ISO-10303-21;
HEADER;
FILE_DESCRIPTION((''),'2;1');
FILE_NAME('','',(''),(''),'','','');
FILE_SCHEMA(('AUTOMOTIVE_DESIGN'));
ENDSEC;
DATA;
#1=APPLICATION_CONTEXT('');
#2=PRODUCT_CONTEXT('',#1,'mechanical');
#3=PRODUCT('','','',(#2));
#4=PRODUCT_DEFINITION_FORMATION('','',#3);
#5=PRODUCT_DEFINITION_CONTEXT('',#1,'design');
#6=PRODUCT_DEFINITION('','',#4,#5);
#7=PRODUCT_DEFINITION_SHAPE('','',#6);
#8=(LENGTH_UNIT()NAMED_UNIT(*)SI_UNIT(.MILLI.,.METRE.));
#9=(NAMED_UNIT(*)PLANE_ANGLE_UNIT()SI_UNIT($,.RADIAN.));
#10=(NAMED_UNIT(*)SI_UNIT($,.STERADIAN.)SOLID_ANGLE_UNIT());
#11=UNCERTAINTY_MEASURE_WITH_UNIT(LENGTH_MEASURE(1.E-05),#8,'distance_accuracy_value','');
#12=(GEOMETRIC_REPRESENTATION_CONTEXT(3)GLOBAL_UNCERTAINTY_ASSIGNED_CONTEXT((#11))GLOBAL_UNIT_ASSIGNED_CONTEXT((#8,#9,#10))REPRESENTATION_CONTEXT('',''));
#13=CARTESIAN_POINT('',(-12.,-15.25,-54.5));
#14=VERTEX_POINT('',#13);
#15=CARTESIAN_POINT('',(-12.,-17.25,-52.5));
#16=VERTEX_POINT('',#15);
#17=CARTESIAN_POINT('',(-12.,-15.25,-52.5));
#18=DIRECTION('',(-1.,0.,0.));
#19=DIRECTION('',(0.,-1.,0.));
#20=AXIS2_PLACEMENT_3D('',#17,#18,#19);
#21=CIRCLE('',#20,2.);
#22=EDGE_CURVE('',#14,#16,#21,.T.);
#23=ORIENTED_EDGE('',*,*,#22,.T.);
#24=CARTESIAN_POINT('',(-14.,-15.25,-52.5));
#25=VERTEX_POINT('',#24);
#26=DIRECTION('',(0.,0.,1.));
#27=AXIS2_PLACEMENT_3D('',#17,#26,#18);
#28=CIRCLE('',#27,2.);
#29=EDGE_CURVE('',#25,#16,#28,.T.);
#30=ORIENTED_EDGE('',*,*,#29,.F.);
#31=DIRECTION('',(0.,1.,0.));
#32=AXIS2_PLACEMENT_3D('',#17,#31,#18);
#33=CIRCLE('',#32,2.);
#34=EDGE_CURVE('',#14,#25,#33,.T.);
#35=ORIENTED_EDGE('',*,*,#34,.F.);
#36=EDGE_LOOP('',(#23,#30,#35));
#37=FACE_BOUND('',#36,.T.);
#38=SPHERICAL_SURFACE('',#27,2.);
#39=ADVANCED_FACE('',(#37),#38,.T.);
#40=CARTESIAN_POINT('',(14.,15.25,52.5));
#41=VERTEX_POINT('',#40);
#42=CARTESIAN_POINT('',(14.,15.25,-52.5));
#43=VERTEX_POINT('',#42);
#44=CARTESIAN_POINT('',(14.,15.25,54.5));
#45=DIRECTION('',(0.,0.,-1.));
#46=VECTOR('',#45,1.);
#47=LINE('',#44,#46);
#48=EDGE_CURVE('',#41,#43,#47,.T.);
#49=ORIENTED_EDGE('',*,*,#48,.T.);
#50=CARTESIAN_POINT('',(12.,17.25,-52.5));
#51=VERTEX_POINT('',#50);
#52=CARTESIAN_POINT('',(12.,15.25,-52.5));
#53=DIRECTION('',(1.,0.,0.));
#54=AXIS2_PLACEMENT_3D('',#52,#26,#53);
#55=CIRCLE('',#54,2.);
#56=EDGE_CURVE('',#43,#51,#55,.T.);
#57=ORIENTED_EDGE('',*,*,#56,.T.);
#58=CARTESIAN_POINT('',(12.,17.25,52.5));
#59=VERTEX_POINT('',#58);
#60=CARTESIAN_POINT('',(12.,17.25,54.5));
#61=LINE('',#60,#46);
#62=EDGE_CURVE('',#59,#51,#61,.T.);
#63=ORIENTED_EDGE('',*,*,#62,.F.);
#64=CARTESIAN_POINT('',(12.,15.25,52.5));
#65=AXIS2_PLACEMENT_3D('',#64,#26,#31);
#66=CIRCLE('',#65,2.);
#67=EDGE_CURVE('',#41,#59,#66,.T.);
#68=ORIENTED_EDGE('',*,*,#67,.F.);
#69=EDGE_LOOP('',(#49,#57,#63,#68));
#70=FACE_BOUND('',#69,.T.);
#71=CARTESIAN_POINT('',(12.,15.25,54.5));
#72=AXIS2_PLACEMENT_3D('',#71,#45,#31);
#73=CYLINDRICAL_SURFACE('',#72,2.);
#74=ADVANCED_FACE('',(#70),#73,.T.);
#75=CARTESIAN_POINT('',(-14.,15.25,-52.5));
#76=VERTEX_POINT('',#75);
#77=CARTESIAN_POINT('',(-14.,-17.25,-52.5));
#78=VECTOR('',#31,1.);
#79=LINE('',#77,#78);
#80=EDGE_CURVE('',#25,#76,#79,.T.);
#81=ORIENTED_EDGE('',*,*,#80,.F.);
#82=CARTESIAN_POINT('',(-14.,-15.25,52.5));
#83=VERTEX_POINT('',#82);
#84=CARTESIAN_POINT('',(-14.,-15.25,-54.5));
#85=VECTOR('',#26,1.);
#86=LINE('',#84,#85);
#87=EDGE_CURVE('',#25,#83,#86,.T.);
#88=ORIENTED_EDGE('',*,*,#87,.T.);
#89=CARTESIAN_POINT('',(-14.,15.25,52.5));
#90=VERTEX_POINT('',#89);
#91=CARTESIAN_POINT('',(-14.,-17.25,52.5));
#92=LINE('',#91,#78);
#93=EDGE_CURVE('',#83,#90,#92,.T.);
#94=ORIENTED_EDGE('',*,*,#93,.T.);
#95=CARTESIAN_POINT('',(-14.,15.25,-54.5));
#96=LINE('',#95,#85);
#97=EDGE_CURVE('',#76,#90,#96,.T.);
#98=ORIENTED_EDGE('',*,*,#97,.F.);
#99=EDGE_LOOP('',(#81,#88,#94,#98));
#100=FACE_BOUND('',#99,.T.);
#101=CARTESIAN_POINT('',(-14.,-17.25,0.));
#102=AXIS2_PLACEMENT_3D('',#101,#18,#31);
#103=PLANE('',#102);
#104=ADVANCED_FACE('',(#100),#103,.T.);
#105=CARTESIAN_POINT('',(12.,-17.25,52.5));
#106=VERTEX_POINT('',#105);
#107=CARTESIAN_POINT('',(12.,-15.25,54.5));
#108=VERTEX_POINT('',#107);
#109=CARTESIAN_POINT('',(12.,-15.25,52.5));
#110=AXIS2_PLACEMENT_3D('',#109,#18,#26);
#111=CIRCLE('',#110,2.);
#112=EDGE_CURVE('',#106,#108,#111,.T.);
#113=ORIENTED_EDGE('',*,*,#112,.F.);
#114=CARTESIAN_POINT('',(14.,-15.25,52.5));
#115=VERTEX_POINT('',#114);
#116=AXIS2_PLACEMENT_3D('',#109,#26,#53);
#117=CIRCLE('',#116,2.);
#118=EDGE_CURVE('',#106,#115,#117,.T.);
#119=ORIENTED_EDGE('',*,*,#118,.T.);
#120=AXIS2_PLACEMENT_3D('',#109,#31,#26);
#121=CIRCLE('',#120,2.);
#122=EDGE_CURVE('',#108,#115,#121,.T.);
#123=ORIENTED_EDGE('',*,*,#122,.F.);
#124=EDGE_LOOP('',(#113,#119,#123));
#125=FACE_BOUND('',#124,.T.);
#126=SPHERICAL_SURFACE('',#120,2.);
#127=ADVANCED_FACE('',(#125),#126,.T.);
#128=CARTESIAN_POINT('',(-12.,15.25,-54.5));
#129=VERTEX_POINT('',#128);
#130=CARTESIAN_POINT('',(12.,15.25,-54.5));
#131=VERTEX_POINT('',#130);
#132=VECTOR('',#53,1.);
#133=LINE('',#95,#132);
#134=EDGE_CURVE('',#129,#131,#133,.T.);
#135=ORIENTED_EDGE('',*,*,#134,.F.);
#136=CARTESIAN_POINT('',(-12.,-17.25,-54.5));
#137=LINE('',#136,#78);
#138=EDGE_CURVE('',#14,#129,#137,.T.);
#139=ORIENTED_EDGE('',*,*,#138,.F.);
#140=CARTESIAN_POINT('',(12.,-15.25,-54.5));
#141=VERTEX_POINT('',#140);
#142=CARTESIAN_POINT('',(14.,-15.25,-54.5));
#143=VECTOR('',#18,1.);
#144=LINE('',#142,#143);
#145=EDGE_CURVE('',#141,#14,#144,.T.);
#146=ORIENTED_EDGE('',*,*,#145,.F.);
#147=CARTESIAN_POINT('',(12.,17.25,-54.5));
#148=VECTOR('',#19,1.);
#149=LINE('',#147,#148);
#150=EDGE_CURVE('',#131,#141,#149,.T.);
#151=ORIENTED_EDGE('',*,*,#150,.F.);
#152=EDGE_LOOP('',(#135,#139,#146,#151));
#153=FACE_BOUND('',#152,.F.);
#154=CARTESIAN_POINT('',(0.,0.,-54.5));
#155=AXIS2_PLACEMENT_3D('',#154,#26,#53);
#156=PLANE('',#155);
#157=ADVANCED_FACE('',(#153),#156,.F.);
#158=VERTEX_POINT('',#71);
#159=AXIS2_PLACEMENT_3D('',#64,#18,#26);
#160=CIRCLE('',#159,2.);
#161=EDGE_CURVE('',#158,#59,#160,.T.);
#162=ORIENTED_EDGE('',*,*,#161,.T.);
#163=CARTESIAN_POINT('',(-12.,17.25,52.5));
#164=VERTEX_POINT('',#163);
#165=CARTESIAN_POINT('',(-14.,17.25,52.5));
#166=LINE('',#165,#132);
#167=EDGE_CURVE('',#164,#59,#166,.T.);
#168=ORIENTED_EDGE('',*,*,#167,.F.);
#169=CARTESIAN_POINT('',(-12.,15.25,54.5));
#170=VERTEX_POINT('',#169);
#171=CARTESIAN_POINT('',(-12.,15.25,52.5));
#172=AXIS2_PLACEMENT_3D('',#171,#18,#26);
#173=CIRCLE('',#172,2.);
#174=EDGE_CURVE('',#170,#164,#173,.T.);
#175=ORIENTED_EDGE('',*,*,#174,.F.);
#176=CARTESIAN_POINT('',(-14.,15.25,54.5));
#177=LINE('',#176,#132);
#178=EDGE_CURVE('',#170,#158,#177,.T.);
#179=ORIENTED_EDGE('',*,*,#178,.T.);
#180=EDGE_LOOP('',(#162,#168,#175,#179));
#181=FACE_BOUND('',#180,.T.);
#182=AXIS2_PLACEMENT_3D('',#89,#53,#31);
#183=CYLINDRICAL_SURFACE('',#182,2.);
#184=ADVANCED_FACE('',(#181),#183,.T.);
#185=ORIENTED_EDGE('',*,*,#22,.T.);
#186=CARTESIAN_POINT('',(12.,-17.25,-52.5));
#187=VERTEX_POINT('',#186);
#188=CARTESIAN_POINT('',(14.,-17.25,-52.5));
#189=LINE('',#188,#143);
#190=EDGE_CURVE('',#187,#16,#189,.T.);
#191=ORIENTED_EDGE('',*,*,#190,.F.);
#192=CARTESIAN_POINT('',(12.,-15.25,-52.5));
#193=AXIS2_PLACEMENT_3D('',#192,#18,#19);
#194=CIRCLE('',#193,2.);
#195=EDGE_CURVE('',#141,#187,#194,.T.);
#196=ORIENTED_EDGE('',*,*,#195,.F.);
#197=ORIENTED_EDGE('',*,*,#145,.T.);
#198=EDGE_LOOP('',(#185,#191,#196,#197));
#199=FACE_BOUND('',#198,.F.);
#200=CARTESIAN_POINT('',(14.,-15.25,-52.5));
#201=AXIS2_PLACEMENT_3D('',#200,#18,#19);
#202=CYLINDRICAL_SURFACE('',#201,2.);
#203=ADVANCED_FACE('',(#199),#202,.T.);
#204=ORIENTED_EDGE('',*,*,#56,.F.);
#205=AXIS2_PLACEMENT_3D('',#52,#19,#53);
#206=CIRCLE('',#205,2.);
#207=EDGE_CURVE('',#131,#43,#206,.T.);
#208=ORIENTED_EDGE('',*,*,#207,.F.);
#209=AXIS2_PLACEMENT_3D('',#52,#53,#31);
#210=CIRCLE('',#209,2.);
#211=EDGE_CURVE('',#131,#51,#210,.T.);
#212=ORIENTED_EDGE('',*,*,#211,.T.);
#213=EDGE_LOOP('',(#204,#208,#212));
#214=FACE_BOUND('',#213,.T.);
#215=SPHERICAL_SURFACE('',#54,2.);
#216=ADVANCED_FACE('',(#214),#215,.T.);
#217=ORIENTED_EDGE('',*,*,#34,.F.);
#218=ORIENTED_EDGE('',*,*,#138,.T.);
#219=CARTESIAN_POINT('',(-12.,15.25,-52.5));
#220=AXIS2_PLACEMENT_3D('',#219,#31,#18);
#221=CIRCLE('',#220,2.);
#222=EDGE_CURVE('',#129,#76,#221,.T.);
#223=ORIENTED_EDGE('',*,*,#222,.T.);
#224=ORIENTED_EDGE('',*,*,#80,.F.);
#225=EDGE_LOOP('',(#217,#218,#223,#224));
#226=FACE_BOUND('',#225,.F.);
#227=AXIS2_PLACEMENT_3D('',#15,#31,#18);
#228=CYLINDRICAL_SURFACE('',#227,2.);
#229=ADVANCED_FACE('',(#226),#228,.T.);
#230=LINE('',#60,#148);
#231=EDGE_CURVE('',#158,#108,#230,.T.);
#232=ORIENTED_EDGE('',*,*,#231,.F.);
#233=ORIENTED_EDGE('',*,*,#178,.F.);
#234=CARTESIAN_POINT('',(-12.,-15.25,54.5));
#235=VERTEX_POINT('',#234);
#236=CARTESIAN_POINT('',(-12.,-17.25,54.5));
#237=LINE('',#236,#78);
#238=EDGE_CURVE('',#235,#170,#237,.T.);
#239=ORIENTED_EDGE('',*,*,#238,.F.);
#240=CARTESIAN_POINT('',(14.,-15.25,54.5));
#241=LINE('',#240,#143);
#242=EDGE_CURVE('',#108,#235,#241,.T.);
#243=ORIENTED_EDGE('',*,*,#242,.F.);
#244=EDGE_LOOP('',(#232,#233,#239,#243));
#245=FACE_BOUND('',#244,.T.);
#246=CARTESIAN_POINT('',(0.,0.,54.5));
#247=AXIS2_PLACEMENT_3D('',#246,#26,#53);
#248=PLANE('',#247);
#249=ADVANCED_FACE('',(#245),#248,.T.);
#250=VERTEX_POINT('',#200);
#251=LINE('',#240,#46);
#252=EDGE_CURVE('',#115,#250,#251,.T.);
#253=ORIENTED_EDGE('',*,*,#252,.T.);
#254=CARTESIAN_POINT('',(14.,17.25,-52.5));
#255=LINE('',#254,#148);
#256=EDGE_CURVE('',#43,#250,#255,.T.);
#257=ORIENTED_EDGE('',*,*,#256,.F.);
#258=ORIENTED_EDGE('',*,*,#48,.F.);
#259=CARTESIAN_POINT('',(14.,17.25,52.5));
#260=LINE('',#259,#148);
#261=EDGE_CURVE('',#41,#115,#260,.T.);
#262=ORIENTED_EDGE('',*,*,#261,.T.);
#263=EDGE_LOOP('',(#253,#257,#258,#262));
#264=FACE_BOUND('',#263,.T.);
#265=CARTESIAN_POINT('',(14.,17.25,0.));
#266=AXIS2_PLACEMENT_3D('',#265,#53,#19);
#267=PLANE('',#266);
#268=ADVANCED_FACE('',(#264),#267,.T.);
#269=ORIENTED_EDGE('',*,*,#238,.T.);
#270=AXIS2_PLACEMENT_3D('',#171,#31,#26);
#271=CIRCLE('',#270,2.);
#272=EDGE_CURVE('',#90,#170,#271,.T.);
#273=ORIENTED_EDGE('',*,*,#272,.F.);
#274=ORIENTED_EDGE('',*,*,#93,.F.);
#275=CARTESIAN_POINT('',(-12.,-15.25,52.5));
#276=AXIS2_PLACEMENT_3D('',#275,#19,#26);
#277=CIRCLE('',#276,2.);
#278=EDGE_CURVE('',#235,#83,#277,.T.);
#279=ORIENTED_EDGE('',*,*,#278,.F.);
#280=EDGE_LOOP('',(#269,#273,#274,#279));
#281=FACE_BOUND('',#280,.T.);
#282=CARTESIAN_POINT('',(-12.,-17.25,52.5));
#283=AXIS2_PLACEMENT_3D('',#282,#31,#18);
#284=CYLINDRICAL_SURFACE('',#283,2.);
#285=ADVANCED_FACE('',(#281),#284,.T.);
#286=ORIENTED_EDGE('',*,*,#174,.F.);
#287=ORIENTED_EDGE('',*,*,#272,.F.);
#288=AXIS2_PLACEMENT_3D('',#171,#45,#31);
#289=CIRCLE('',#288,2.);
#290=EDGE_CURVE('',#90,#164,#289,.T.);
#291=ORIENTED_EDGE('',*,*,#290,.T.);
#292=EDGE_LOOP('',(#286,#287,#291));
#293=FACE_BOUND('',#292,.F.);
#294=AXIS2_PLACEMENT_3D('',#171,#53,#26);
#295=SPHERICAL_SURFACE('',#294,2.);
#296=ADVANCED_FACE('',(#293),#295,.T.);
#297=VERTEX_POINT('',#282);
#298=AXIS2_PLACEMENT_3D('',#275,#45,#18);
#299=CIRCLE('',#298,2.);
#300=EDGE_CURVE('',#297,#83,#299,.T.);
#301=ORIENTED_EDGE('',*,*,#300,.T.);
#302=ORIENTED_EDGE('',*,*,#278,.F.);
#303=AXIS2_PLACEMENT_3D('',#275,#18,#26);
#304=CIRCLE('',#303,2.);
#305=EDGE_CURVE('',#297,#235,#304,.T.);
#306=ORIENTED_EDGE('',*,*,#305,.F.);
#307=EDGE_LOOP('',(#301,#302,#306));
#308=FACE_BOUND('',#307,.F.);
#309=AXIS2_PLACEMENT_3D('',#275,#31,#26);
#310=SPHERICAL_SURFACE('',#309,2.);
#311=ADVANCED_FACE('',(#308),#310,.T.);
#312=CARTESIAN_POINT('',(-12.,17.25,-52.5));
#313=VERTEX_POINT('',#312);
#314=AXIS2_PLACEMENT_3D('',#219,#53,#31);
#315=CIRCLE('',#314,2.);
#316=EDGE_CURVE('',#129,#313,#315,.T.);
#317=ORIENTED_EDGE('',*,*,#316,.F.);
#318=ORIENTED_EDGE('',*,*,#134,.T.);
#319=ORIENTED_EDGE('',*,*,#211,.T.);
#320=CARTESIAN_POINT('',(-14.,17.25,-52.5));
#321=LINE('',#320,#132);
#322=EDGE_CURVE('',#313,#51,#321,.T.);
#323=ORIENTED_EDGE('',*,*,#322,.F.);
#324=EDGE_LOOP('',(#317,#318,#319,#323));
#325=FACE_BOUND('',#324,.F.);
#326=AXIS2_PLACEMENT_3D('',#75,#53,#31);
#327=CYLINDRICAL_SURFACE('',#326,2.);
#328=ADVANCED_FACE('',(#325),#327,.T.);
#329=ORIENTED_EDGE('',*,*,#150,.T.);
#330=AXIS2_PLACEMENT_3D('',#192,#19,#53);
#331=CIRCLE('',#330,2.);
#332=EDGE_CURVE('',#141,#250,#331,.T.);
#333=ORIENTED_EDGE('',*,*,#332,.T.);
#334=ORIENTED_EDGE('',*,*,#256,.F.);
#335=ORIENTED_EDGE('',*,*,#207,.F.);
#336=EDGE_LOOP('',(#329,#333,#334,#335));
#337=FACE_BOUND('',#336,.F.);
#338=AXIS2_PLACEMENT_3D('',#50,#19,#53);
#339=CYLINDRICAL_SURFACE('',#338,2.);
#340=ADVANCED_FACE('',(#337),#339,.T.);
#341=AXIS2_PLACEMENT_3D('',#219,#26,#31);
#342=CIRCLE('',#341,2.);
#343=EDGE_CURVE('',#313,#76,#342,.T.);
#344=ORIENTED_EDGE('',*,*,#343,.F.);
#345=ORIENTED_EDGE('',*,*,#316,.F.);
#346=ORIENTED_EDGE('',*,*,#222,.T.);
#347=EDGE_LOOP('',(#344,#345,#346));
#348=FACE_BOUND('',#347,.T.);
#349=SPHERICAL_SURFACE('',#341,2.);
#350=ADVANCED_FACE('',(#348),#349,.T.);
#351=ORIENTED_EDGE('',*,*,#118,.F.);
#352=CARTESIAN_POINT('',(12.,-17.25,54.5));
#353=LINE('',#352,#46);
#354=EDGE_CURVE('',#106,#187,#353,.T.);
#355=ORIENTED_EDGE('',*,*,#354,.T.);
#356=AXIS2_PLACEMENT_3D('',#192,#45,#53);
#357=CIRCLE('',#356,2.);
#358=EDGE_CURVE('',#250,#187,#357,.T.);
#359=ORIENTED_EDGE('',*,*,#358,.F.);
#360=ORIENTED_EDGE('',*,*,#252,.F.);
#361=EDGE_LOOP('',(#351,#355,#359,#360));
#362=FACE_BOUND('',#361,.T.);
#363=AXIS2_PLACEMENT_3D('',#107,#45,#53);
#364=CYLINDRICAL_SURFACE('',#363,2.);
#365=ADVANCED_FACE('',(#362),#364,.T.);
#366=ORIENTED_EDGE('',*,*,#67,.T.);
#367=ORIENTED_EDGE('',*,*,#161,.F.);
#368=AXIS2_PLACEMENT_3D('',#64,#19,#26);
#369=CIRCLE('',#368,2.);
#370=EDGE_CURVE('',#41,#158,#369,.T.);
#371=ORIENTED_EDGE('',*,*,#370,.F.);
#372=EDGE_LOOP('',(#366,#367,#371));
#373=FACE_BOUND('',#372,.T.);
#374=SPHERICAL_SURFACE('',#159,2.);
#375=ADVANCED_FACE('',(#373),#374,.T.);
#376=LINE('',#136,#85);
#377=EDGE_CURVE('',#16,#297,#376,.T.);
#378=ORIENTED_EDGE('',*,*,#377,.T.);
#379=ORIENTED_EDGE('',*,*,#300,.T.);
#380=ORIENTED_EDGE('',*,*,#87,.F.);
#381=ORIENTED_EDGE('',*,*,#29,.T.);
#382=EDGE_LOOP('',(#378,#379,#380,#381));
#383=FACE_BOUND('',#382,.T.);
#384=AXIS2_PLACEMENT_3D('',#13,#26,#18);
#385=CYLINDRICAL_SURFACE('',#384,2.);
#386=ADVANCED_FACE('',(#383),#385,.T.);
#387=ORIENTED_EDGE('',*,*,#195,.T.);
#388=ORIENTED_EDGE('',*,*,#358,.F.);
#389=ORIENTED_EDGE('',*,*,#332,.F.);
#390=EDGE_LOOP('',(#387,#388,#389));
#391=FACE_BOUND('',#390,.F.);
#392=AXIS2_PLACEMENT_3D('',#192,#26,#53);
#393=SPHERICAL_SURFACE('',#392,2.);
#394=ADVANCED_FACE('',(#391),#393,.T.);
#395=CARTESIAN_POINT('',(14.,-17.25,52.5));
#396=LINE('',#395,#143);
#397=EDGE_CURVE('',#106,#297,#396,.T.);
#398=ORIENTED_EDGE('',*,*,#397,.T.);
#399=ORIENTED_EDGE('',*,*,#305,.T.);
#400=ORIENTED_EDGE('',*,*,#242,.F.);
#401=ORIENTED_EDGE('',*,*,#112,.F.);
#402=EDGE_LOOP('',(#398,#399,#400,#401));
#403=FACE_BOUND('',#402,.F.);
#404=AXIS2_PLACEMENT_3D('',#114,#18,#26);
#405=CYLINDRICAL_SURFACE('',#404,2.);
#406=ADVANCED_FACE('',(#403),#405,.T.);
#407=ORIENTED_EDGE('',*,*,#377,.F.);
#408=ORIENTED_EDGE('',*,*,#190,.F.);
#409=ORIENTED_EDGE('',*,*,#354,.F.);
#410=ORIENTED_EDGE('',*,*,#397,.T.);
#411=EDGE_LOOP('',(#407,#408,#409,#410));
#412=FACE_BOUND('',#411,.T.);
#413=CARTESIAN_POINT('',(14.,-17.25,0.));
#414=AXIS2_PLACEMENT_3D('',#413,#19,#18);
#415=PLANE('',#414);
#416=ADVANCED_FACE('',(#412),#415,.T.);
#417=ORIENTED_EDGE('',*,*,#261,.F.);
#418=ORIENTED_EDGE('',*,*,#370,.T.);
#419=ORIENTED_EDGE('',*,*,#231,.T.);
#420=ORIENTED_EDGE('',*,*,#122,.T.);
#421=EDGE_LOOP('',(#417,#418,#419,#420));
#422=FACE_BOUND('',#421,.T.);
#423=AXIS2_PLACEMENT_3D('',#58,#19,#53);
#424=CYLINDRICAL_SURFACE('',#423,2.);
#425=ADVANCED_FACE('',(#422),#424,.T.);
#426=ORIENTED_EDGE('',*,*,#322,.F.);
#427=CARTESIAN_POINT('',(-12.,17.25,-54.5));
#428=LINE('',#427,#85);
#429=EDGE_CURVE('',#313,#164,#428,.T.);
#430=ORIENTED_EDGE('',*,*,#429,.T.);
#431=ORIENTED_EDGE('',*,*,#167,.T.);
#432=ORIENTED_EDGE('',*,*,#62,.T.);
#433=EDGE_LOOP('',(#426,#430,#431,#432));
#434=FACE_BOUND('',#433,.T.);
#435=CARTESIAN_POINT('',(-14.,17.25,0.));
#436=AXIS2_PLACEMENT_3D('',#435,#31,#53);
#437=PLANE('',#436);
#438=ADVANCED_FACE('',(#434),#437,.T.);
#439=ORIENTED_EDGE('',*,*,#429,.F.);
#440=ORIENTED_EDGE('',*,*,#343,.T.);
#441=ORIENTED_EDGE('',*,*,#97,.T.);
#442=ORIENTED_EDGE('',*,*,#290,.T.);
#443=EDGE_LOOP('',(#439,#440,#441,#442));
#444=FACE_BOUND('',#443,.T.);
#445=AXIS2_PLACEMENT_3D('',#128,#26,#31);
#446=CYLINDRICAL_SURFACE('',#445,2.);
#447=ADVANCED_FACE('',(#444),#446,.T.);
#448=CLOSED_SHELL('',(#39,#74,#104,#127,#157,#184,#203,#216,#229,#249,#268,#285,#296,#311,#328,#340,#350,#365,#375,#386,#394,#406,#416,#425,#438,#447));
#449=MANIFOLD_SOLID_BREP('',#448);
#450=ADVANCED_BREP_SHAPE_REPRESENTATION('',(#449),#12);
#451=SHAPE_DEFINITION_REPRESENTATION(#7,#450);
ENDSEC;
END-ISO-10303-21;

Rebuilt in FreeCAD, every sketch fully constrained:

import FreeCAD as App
import Part
import Sketcher


def add_polygon(sketch, points):
    """Adds a closed chain of lines whose ends are joined by coincident constraints."""
    first, n = sketch.GeometryCount, len(points)
    for a, b in zip(points, points[1:] + points[:1]):
        sketch.addGeometry(Part.LineSegment(App.Vector(*a, 0), App.Vector(*b, 0)), False)
    for i in range(n):
        sketch.addConstraint(Sketcher.Constraint("Coincident", first + i, 2, first + (i + 1) % n, 1))

doc = App.newDocument("Part")
body = doc.addObject("PartDesign::Body", "Body")

# Sketch on XY plane
sketch1 = body.newObject("Sketcher::SketchObject", "Sketch")
sketch1.AttachmentSupport = (doc.getObject("XY_Plane"), [""])
sketch1.MapMode = "FlatFace"
add_polygon(sketch1, [(14, 17), (-14, 17), (-14, -17), (14, -17)])  # lines 0-3
sketch1.addConstraint([
    Sketcher.Constraint("Horizontal", 0),
    Sketcher.Constraint("Vertical", 1),
    Sketcher.Constraint("Horizontal", 2),
    Sketcher.Constraint("Vertical", 3),
    Sketcher.Constraint("Symmetric", 0, 2, 2, 2, -1, 1),
    Sketcher.Constraint("DistanceX", 0, 2, 0, 1, 28.0),
    Sketcher.Constraint("DistanceY", 1, 2, 1, 1, 34.5),
])
pad1 = body.newObject("PartDesign::Pad", "Pad")
pad1.Profile = sketch1
pad1.Length = 109
pad1.Midplane = True
doc.recompute()

fillet = body.newObject("PartDesign::Fillet", "Fillet")
fillet.Base = (pad1, ["Edge1"])
fillet.UseAllEdges = True
fillet.Radius = 2

doc.recompute()
